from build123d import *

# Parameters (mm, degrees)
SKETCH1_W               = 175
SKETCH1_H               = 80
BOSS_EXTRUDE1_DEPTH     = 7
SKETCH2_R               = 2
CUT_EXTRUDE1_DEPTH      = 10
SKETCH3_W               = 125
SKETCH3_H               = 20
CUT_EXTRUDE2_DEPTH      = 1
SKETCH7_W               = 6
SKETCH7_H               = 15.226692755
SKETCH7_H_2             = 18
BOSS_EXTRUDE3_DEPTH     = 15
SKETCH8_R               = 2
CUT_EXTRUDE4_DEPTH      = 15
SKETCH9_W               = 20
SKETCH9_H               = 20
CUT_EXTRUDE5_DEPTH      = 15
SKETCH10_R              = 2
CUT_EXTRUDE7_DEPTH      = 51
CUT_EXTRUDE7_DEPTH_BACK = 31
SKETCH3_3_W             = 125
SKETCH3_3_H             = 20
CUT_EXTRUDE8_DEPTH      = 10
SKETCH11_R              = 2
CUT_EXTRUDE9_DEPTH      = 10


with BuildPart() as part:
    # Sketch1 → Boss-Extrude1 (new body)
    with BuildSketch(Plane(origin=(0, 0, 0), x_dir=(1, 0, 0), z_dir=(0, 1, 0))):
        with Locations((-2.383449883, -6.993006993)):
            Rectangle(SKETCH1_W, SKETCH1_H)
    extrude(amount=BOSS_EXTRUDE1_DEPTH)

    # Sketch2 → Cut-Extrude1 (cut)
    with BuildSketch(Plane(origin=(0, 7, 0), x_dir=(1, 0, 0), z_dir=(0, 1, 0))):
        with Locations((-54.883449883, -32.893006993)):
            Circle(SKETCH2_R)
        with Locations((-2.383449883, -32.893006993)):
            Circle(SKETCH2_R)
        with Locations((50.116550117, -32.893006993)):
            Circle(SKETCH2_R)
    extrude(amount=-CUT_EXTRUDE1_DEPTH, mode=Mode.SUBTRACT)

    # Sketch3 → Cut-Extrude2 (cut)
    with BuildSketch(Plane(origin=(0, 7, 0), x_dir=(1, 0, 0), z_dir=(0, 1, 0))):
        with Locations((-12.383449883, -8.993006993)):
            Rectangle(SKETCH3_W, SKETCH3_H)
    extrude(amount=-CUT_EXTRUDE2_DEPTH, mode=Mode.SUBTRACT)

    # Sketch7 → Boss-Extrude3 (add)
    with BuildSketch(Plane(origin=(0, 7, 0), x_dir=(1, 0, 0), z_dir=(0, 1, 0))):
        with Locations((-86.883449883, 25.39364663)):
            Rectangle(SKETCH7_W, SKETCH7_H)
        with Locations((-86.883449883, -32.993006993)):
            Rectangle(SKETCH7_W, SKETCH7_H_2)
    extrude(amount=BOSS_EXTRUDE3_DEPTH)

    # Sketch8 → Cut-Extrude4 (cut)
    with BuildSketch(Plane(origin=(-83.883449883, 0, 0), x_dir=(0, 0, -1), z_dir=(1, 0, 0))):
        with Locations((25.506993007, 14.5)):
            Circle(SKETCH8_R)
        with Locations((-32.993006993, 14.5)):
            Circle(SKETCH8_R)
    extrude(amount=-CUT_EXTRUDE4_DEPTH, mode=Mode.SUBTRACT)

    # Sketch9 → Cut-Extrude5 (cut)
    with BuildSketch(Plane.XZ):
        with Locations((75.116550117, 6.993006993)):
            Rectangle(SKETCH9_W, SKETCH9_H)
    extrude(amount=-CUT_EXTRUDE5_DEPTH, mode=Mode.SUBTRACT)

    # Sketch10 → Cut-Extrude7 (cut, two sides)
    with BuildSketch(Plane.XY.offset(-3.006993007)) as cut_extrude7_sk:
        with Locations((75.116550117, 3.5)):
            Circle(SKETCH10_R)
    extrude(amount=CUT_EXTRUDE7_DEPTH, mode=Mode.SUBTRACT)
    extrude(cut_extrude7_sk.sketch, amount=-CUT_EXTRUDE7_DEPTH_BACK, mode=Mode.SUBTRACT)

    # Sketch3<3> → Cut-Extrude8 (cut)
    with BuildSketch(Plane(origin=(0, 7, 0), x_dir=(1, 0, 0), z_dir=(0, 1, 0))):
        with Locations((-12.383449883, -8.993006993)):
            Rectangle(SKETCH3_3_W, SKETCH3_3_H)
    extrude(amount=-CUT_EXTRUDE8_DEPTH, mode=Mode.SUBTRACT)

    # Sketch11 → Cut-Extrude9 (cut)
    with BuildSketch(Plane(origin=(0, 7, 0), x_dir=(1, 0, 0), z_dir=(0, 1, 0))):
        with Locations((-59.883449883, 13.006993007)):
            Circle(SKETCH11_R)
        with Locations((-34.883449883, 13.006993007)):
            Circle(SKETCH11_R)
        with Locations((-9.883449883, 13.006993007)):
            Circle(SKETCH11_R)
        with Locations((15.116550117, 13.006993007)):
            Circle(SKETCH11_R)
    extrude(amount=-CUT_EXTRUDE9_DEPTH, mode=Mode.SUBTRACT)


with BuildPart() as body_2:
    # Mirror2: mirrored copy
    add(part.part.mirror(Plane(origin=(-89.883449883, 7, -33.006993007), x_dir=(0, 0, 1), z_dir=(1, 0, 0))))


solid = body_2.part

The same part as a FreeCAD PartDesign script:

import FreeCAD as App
import Part
import Sketcher


def add_polygon(sketch, points):
    """Adds a closed chain of lines whose ends are joined by coincident constraints."""
    first, n = sketch.GeometryCount, len(points)
    for a, b in zip(points, points[1:] + points[:1]):
        sketch.addGeometry(Part.LineSegment(App.Vector(*a, 0), App.Vector(*b, 0)), False)
    for i in range(n):
        sketch.addConstraint(Sketcher.Constraint("Coincident", first + i, 2, first + (i + 1) % n, 1))

doc = App.newDocument("Part")
body = doc.addObject("PartDesign::Body", "Body")

# Sketch on XZ plane
sketch1 = body.newObject("Sketcher::SketchObject", "Sketch")
sketch1.AttachmentSupport = (doc.getObject("XZ_Plane"), [""])
sketch1.MapMode = "FlatFace"
add_polygon(sketch1, [(-90, -33), (-90, 47), (85, 47), (85, -33)])  # lines 0-3
sketch1.addConstraint([
    Sketcher.Constraint("Vertical", 0),
    Sketcher.Constraint("Horizontal", 1),
    Sketcher.Constraint("Vertical", 2),
    Sketcher.Constraint("Horizontal", 3),
    Sketcher.Constraint("DistanceX", 1, 1, 1, 2, 175.0),
    Sketcher.Constraint("DistanceY", 0, 1, 0, 2, 80.0),
    Sketcher.Constraint("DistanceX", 0, 2, -1, 1, 89.88345),
    Sketcher.Constraint("DistanceY", -1, 1, 0, 2, 46.993007),
])
pad1 = body.newObject("PartDesign::Pad", "Pad")
pad1.Profile = sketch1
pad1.Length = 7
pad1.Reversed = True

# Sketch on XZ plane
sketch2 = body.newObject("Sketcher::SketchObject", "Sketch001")
sketch2.AttachmentSupport = (doc.getObject("XZ_Plane"), [""])
sketch2.MapMode = "FlatFace"
sketch2.AttachmentOffset = App.Placement(App.Vector(0, 0, -7), App.Rotation())
sketch2.addGeometry([
    Part.Circle(App.Vector(-54.9, 32.9, 0), App.Vector(0, 0, 1), 2),
    Part.Circle(App.Vector(-2.4, 32.9, 0), App.Vector(0, 0, 1), 2),
    Part.Circle(App.Vector(50.1, 32.9, 0), App.Vector(0, 0, 1), 2),
], False)
sketch2.addConstraint([
    Sketcher.Constraint("Equal", 0, 1),
    Sketcher.Constraint("Equal", 1, 2),
    Sketcher.Constraint("Horizontal", 0, 3, 1, 3),
    Sketcher.Constraint("Horizontal", 1, 3, 2, 3),
    Sketcher.Constraint("Diameter", 0, 4.0),
    Sketcher.Constraint("DistanceX", 0, 3, 2, 3, 105.0),
    Sketcher.Constraint("DistanceX", 0, 3, 1, 3, 52.5),
    Sketcher.Constraint("DistanceX", 0, 3, -1, 1, 54.88345),
    Sketcher.Constraint("DistanceY", -1, 1, 0, 3, 32.893007),
])
pocket1 = body.newObject("PartDesign::Pocket", "Pocket")
pocket1.Profile = sketch2
pocket1.Length = 10
pocket1.Reversed = True

# Sketch on XZ plane
sketch3 = body.newObject("Sketcher::SketchObject", "Sketch002")
sketch3.AttachmentSupport = (doc.getObject("XZ_Plane"), [""])
sketch3.MapMode = "FlatFace"
sketch3.AttachmentOffset = App.Placement(App.Vector(0, 0, -7), App.Rotation())
add_polygon(sketch3, [(-75, -1), (-75, 19), (50, 19), (50, -1)])  # lines 0-3
sketch3.addConstraint([
    Sketcher.Constraint("Vertical", 0),
    Sketcher.Constraint("Horizontal", 1),
    Sketcher.Constraint("Vertical", 2),
    Sketcher.Constraint("Horizontal", 3),
    Sketcher.Constraint("DistanceX", 1, 1, 1, 2, 125.0),
    Sketcher.Constraint("DistanceY", 0, 1, 0, 2, 20.0),
    Sketcher.Constraint("DistanceX", 0, 2, -1, 1, 74.88345),
    Sketcher.Constraint("DistanceY", -1, 1, 0, 2, 18.993007),
])
pocket2 = body.newObject("PartDesign::Pocket", "Pocket001")
pocket2.Profile = sketch3
pocket2.Length = 1
pocket2.Reversed = True

# Sketch on XZ plane
sketch4 = body.newObject("Sketcher::SketchObject", "Sketch003")
sketch4.AttachmentSupport = (doc.getObject("XZ_Plane"), [""])
sketch4.MapMode = "FlatFace"
sketch4.AttachmentOffset = App.Placement(App.Vector(0, 0, -7), App.Rotation())
add_polygon(sketch4, [(-90, -33), (-90, -18), (-84, -18), (-84, -33)])  # lines 0-3
add_polygon(sketch4, [(-90, 24), (-90, 42), (-84, 42), (-84, 24)])  # lines 4-7
sketch4.addConstraint([
    Sketcher.Constraint("Vertical", 0),
    Sketcher.Constraint("Horizontal", 1),
    Sketcher.Constraint("Vertical", 2),
    Sketcher.Constraint("Horizontal", 3),
    Sketcher.Constraint("Vertical", 4),
    Sketcher.Constraint("Horizontal", 5),
    Sketcher.Constraint("Vertical", 6),
    Sketcher.Constraint("Horizontal", 7),
    Sketcher.Constraint("Vertical", 3, 2, 4, 2),
    Sketcher.Constraint("Vertical", 2, 2, 5, 2),
    Sketcher.Constraint("DistanceX", 1, 1, 1, 2, 6.0),
    Sketcher.Constraint("DistanceY", 4, 1, 4, 2, 18.0),
    Sketcher.Constraint("DistanceY", 3, 2, 4, 2, 75.0),
    Sketcher.Constraint("DistanceY", 0, 2, -1, 1, 17.7803),
    Sketcher.Constraint("DistanceY", 0, 1, 0, 2, 15.226693),
    Sketcher.Constraint("DistanceX", 0, 2, -1, 1, 89.88345),
])
pad2 = body.newObject("PartDesign::Pad", "Pad001")
pad2.Profile = sketch4
pad2.Length = 15
pad2.Reversed = True

# Sketch on YZ plane
sketch5 = body.newObject("Sketcher::SketchObject", "Sketch004")
sketch5.AttachmentSupport = (doc.getObject("YZ_Plane"), [""])
sketch5.MapMode = "FlatFace"
sketch5.AttachmentOffset = App.Placement(App.Vector(0, 0, -83.88345), App.Rotation())
sketch5.addGeometry([
    Part.Circle(App.Vector(14.5, -25.5, 0), App.Vector(0, 0, 1), 2),
    Part.Circle(App.Vector(14.5, 33, 0), App.Vector(0, 0, 1), 2),
], False)
sketch5.addConstraint([
    Sketcher.Constraint("Equal", 0, 1),
    Sketcher.Constraint("Vertical", 0, 3, 1, 3),
    Sketcher.Constraint("Diameter", 0, 4.0),
    Sketcher.Constraint("DistanceX", -1, 1, 0, 3, 14.5),
    Sketcher.Constraint("DistanceY", 0, 3, 1, 3, 58.5),
    Sketcher.Constraint("DistanceY", 0, 3, -1, 1, 25.506993),
])
pocket3 = body.newObject("PartDesign::Pocket", "Pocket002")
pocket3.Profile = sketch5
pocket3.Length = 15

# Sketch on XZ plane
sketch6 = body.newObject("Sketcher::SketchObject", "Sketch005")
sketch6.AttachmentSupport = (doc.getObject("XZ_Plane"), [""])
sketch6.MapMode = "FlatFace"
add_polygon(sketch6, [(65, 17), (65, -3), (85, -3), (85, 17)])  # lines 0-3
sketch6.addConstraint([
    Sketcher.Constraint("Vertical", 0),
    Sketcher.Constraint("Horizontal", 1),
    Sketcher.Constraint("Vertical", 2),
    Sketcher.Constraint("Horizontal", 3),
    Sketcher.Constraint("Equal", 3, 0),
    Sketcher.Constraint("DistanceX", 1, 1, 1, 2, 20.0),
    Sketcher.Constraint("DistanceX", -1, 1, 0, 2, 65.11655),
    Sketcher.Constraint("DistanceY", 0, 2, -1, 1, 3.006993),
])
pocket4 = body.newObject("PartDesign::Pocket", "Pocket003")
pocket4.Profile = sketch6
pocket4.Length = 15

# Sketch on XY plane
sketch7 = body.newObject("Sketcher::SketchObject", "Sketch006")
sketch7.AttachmentSupport = (doc.getObject("XY_Plane"), [""])
sketch7.MapMode = "FlatFace"
sketch7.AttachmentOffset = App.Placement(App.Vector(0, 0, -3.006993), App.Rotation())
sketch7.addGeometry(Part.Circle(App.Vector(75.1, 3.5, 0), App.Vector(0, 0, 1), 2), False)
sketch7.addConstraint([
    Sketcher.Constraint("Diameter", 0, 4.0),
    Sketcher.Constraint("DistanceY", -1, 1, 0, 3, 3.5),
    Sketcher.Constraint("DistanceX", -1, 1, 0, 3, 75.11655),
])
pocket5 = body.newObject("PartDesign::Pocket", "Pocket004")
pocket5.Profile = sketch7
pocket5.Type = "ThroughAll"
pocket5.Midplane = True

# Sketch on XZ plane
sketch8 = body.newObject("Sketcher::SketchObject", "Sketch007")
sketch8.AttachmentSupport = (doc.getObject("XZ_Plane"), [""])
sketch8.MapMode = "FlatFace"
sketch8.AttachmentOffset = App.Placement(App.Vector(0, 0, -7), App.Rotation())
add_polygon(sketch8, [(-75, -1), (-75, 19), (50, 19), (50, -1)])  # lines 0-3
sketch8.addConstraint([
    Sketcher.Constraint("Vertical", 0),
    Sketcher.Constraint("Horizontal", 1),
    Sketcher.Constraint("Vertical", 2),
    Sketcher.Constraint("Horizontal", 3),
    Sketcher.Constraint("DistanceX", 1, 1, 1, 2, 125.0),
    Sketcher.Constraint("DistanceY", 0, 1, 0, 2, 20.0),
    Sketcher.Constraint("DistanceX", 0, 2, -1, 1, 74.88345),
    Sketcher.Constraint("DistanceY", -1, 1, 0, 2, 18.993007),
])
pocket6 = body.newObject("PartDesign::Pocket", "Pocket005")
pocket6.Profile = sketch8
pocket6.Length = 10
pocket6.Reversed = True

# Sketch on XZ plane
sketch9 = body.newObject("Sketcher::SketchObject", "Sketch008")
sketch9.AttachmentSupport = (doc.getObject("XZ_Plane"), [""])
sketch9.MapMode = "FlatFace"
sketch9.AttachmentOffset = App.Placement(App.Vector(0, 0, -7), App.Rotation())
sketch9.addGeometry([
    Part.Circle(App.Vector(-59.9, -13, 0), App.Vector(0, 0, 1), 2),
    Part.Circle(App.Vector(-34.9, -13, 0), App.Vector(0, 0, 1), 2),
    Part.Circle(App.Vector(-9.9, -13, 0), App.Vector(0, 0, 1), 2),
    Part.Circle(App.Vector(15.1, -13, 0), App.Vector(0, 0, 1), 2),
], False)
sketch9.addConstraint([
    Sketcher.Constraint("Equal", 0, 1),
    Sketcher.Constraint("Equal", 1, 2),
    Sketcher.Constraint("Equal", 2, 3),
    Sketcher.Constraint("Horizontal", 0, 3, 1, 3),
    Sketcher.Constraint("Horizontal", 1, 3, 2, 3),
    Sketcher.Constraint("Horizontal", 2, 3, 3, 3),
    Sketcher.Constraint("Diameter", 0, 4.0),
    Sketcher.Constraint("DistanceX", 0, 3, 1, 3, 25.0),
    Sketcher.Constraint("DistanceX", 1, 3, 2, 3, 25.0),
    Sketcher.Constraint("DistanceX", 2, 3, 3, 3, 25.0),
    Sketcher.Constraint("DistanceX", 0, 3, -1, 1, 59.88345),
    Sketcher.Constraint("DistanceY", 0, 3, -1, 1, 13.006993),
])
pocket7 = body.newObject("PartDesign::Pocket", "Pocket006")
pocket7.Profile = sketch9
pocket7.Length = 10
pocket7.Reversed = True
body2 = doc.addObject("PartDesign::Body", "Body001")
doc.recompute()

mirroring = doc.addObject("Part::Mirroring", "Mirroring")
mirroring.Source = body
mirroring.Base = App.Vector(-89.88345, 7, -33.006993)
mirroring.Normal = App.Vector(1, 0, 0)
body2.BaseFeature = mirroring
doc.recompute()
body.Visibility = False
mirroring.Visibility = False

doc.recompute()
